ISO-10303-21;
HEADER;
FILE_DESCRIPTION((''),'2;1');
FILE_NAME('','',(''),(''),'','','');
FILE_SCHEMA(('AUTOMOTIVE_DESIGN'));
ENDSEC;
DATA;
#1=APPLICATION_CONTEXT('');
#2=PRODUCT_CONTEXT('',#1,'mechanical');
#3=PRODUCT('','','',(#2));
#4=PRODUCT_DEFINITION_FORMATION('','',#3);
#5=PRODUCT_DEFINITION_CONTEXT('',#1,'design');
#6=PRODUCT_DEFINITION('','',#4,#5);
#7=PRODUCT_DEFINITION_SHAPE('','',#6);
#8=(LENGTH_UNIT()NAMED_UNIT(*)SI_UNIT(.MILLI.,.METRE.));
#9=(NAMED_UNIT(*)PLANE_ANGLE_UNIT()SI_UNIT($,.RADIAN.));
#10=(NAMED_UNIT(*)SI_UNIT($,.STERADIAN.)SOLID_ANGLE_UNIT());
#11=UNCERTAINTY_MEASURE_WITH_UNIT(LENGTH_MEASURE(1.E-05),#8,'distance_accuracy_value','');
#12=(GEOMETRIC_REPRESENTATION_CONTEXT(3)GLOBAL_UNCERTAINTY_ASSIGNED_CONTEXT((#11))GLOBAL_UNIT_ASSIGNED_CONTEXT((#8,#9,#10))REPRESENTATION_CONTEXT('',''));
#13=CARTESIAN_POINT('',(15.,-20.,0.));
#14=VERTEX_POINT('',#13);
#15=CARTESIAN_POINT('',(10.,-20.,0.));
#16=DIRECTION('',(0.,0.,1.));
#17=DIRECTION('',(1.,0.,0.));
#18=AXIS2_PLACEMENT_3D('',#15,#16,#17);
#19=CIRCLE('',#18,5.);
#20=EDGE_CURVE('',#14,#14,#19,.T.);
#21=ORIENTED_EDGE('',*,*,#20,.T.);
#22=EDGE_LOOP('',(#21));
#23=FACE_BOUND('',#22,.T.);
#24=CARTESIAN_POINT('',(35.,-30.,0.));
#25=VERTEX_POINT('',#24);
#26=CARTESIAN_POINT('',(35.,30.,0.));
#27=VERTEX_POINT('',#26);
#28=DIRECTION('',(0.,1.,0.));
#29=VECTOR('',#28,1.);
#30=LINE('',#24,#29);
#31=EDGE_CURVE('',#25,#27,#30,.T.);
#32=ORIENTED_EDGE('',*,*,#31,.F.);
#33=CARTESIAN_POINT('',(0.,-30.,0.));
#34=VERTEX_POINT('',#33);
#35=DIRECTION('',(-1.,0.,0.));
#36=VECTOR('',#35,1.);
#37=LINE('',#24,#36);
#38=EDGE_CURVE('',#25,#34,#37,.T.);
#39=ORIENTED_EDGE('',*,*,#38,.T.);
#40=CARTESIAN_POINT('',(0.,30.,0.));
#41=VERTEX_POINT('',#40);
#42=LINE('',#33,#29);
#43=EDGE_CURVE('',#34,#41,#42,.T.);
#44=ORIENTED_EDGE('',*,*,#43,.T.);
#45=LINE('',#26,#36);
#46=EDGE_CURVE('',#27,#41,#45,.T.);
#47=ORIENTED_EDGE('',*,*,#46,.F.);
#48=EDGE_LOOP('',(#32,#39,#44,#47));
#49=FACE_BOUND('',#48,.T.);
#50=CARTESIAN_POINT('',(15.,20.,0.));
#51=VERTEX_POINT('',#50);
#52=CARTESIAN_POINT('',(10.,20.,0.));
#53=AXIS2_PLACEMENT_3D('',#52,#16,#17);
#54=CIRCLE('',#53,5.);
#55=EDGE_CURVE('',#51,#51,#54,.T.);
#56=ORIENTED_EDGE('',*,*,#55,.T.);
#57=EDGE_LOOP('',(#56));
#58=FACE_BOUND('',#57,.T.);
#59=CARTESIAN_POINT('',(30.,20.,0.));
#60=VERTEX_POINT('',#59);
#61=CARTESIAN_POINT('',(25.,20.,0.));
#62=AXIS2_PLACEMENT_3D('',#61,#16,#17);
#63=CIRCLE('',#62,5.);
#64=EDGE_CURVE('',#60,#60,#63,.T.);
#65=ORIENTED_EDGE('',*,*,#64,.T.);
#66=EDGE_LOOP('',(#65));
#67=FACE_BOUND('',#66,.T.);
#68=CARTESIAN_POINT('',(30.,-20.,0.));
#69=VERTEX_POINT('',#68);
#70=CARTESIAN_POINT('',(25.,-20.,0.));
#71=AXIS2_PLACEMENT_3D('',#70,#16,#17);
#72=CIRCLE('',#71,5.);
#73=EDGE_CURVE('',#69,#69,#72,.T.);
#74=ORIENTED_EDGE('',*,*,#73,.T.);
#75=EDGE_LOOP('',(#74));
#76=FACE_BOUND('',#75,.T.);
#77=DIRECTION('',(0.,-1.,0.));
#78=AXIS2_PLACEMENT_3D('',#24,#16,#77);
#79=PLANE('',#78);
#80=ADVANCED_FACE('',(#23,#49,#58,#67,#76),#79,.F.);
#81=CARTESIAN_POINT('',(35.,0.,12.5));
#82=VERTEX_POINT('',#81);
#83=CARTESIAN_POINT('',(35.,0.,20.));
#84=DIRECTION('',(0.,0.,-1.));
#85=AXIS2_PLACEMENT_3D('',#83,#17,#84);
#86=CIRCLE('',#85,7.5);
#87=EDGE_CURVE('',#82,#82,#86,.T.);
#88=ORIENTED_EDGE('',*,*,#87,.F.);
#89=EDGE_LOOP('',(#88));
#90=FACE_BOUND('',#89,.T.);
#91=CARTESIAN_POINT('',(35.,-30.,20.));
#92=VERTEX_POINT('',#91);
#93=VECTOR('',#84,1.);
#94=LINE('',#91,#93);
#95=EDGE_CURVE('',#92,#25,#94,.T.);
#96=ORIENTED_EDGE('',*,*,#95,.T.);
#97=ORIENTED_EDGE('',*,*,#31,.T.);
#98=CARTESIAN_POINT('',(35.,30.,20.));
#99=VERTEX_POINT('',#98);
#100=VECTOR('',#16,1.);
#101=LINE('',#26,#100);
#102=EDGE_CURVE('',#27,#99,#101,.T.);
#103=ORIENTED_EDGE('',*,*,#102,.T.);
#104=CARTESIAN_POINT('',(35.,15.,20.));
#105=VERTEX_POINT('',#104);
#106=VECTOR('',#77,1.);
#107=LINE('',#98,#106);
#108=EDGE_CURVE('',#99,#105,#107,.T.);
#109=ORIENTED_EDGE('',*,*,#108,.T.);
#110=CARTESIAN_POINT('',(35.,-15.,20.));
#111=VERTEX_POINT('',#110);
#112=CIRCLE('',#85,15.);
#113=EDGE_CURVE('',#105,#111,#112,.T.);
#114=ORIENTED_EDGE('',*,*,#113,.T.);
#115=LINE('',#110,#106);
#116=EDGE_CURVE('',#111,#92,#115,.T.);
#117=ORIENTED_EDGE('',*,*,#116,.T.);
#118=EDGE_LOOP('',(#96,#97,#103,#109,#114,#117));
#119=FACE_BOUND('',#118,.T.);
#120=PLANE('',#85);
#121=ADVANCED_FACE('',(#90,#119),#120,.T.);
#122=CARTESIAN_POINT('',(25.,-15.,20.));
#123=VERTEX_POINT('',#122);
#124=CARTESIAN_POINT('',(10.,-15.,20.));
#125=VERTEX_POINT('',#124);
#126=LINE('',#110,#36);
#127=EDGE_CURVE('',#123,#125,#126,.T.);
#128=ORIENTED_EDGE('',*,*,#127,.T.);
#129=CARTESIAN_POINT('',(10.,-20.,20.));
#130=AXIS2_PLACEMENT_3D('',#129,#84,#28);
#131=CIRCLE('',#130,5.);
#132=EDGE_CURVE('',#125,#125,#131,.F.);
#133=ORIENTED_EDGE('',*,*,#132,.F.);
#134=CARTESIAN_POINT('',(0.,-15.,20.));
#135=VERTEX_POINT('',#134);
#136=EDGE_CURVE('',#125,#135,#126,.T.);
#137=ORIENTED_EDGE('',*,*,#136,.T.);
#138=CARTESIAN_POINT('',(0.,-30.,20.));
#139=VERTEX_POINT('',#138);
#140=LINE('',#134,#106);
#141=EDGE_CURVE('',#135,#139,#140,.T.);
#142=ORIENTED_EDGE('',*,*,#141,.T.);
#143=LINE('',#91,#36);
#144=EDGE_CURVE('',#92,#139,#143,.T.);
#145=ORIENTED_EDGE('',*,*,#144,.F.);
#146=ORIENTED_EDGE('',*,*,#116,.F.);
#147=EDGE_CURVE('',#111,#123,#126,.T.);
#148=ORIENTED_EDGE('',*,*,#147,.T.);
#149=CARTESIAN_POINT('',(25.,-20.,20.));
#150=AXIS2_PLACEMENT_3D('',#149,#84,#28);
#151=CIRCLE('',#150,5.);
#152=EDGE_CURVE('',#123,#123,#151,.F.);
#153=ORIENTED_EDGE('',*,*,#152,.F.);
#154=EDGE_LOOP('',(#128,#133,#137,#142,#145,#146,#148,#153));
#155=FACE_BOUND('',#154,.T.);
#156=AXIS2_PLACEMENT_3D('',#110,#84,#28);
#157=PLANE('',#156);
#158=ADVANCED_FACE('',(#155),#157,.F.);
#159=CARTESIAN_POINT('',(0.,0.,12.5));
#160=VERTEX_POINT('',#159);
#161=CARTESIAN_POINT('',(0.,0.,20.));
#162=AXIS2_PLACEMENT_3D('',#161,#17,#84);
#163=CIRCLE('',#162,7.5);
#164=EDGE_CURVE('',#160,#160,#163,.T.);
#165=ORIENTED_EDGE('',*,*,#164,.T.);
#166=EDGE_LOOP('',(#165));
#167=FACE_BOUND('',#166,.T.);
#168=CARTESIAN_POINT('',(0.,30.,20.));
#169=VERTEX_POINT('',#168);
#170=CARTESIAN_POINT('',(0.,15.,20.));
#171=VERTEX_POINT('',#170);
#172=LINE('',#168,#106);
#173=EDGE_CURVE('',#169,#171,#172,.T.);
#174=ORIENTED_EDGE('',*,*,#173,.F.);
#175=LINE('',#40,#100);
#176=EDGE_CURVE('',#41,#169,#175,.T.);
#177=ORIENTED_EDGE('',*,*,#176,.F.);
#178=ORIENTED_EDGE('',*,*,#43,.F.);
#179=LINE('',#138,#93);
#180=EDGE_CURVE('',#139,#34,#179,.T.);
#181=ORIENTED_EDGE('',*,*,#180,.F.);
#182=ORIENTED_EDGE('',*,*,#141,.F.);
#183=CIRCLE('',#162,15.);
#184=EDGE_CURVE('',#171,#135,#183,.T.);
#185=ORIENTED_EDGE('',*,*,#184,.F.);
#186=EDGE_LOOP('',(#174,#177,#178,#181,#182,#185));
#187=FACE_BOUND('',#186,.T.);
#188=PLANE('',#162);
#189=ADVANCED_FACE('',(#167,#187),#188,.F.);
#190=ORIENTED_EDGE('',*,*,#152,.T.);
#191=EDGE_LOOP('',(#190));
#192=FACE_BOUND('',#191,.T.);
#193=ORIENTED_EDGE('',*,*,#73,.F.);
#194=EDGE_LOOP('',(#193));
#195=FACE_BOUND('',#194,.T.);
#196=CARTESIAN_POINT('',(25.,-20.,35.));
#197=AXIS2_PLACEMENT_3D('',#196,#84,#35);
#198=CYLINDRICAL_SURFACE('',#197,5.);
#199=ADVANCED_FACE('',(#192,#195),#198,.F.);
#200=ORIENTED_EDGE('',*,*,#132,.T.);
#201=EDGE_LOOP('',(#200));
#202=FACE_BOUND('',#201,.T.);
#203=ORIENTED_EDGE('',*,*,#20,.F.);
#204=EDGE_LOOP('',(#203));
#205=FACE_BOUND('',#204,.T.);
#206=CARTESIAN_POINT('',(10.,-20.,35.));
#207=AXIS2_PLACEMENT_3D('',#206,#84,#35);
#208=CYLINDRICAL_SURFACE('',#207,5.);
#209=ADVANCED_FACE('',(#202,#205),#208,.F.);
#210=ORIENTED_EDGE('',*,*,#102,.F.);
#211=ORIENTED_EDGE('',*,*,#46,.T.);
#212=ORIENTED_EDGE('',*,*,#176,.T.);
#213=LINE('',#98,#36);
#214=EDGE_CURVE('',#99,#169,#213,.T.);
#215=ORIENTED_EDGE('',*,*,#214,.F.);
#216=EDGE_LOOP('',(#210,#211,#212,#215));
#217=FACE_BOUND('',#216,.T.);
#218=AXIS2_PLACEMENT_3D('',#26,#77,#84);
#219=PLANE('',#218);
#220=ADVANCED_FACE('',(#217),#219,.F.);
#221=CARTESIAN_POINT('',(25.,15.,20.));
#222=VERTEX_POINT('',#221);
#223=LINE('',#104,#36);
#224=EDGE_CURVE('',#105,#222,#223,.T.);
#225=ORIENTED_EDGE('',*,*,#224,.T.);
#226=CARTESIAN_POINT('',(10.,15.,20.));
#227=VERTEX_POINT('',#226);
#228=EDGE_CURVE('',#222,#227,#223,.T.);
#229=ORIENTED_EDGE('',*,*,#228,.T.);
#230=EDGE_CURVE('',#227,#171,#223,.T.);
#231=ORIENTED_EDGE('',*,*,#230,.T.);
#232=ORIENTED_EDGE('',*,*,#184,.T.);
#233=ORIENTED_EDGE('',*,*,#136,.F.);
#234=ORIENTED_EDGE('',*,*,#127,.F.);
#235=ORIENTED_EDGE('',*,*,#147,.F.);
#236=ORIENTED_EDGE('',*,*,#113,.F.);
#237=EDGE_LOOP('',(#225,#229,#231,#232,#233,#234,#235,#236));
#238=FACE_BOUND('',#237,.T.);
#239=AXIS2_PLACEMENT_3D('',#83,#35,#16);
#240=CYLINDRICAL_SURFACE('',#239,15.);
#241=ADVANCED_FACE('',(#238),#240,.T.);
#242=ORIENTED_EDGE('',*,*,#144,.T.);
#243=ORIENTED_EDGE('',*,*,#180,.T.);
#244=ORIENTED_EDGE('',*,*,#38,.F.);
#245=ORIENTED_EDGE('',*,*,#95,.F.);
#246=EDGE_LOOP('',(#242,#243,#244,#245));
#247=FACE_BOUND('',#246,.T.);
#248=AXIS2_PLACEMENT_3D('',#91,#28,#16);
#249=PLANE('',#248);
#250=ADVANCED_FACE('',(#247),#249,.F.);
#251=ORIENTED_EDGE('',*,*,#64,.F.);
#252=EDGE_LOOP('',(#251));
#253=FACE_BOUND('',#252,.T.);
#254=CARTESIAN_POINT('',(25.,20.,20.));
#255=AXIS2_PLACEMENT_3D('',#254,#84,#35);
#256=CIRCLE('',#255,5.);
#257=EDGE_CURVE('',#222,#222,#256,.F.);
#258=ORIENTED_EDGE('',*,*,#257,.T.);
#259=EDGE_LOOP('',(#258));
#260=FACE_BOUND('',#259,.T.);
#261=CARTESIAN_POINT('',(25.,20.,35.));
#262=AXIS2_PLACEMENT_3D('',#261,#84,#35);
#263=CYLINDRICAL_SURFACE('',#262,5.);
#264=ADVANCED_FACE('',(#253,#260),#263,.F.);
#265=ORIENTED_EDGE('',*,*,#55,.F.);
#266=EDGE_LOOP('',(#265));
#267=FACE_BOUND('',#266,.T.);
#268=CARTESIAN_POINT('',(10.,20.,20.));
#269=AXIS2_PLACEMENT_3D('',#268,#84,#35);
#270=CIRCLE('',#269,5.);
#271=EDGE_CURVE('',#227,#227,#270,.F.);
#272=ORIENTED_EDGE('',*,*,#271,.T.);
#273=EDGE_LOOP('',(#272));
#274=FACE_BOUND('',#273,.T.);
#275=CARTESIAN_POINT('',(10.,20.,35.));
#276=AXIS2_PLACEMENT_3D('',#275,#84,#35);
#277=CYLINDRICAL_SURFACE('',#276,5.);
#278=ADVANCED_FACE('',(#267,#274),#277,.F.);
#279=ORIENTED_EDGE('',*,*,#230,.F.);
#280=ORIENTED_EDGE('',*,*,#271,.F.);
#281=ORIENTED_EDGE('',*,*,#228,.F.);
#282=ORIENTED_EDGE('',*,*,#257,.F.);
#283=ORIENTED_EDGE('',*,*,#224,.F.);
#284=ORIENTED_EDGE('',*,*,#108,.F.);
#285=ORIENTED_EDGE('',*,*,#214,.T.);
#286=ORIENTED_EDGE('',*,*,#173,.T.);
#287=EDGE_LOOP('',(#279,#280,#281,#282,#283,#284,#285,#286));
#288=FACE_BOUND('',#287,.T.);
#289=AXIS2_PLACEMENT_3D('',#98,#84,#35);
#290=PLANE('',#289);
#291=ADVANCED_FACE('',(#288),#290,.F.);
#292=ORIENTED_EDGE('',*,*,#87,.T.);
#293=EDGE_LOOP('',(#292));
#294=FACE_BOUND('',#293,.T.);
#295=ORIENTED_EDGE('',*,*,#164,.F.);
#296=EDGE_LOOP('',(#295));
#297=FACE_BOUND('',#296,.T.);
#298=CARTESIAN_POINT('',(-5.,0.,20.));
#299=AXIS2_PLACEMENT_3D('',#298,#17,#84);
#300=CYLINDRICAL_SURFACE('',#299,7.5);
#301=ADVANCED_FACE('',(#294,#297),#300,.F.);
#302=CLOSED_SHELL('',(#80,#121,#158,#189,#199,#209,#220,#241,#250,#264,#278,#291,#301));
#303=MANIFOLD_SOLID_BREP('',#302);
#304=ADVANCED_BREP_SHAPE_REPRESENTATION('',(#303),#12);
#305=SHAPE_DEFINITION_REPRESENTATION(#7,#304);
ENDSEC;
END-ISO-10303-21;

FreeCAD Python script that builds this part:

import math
import FreeCAD as App
import Part
import Sketcher
from FreeCAD import Vector

doc = App.newDocument("Part")
body = doc.addObject("PartDesign::Body", "Body")

# Sketch on YZ plane
sketch1 = doc.addObject("Sketcher::SketchObject", "Sketch")
body.addObject(sketch1)
sketch1.AttachmentSupport = (doc.YZ_Plane, [""])
sketch1.MapMode = "FlatFace"
sketch1.addGeometry([
    Part.LineSegment(Vector(-30, 0, 0), Vector(30, 0, 0)),  # 0
    Part.LineSegment(Vector(30, 0, 0), Vector(30, 20, 0)),  # 1
    Part.LineSegment(Vector(30, 20, 0), Vector(15, 20, 0)),  # 2
    Part.ArcOfCircle(Part.Circle(Vector(0, 20, 0), Vector(0, 0, 1), 15), math.radians(0), math.radians(180)),  # 3
    Part.LineSegment(Vector(-15, 20, 0), Vector(-30, 20, 0)),  # 4
    Part.LineSegment(Vector(-30, 20, 0), Vector(-30, 0, 0)),  # 5
], False)
sketch1.addConstraint([
    Sketcher.Constraint("Coincident", 0, 2, 1, 1),
    Sketcher.Constraint("Coincident", 1, 2, 2, 1),
    Sketcher.Constraint("Coincident", 2, 2, 3, 1),
    Sketcher.Constraint("Coincident", 3, 2, 4, 1),
    Sketcher.Constraint("Coincident", 4, 2, 5, 1),
    Sketcher.Constraint("Coincident", 5, 2, 0, 1),
    Sketcher.Constraint("Horizontal", 0),
    Sketcher.Constraint("Vertical", 1),
    Sketcher.Constraint("Horizontal", 2),
    Sketcher.Constraint("Horizontal", 4),
    Sketcher.Constraint("Vertical", 5),
    Sketcher.Constraint("Symmetric", 0, 2, 5, 2, -1, 1),
    Sketcher.Constraint("Symmetric", 2, 2, 3, 2, -2),
    Sketcher.Constraint("Horizontal", 3, 3, 1, 2),
    Sketcher.Constraint("Radius", 3, 15.0),
    Sketcher.Constraint("DistanceX", 0, 1, 0, 2, 60.0),
    Sketcher.Constraint("DistanceY", 1, 1, 1, 2, 20.0),
])
pad1 = doc.addObject("PartDesign::Pad", "Pad")
body.addObject(pad1)
pad1.Profile = sketch1
pad1.Length = 35

# Sketch on XY plane
sketch2 = doc.addObject("Sketcher::SketchObject", "Sketch001")
body.addObject(sketch2)
sketch2.AttachmentSupport = (doc.XY_Plane, [""])
sketch2.MapMode = "FlatFace"
sketch2.addGeometry([
    Part.Circle(Vector(10, 20, 0), Vector(0, 0, 1), 5),
    Part.Circle(Vector(25, 20, 0), Vector(0, 0, 1), 5),
    Part.Circle(Vector(10, -20, 0), Vector(0, 0, 1), 5),
    Part.Circle(Vector(25, -20, 0), Vector(0, 0, 1), 5),
], False)
sketch2.addConstraint([
    Sketcher.Constraint("Equal", 0, 1),
    Sketcher.Constraint("Equal", 1, 2),
    Sketcher.Constraint("Equal", 2, 3),
    Sketcher.Constraint("Symmetric", 0, 3, 2, 3, -1),
    Sketcher.Constraint("Symmetric", 1, 3, 3, 3, -1),
    Sketcher.Constraint("Horizontal", 0, 3, 1, 3),
    Sketcher.Constraint("Diameter", 0, 10.0),
    Sketcher.Constraint("DistanceX", -1, 1, 0, 3, 10.0),
    Sketcher.Constraint("DistanceY", -1, 1, 0, 3, 20.0),
    Sketcher.Constraint("DistanceX", -1, 1, 1, 3, 25.0),
])
pocket1 = doc.addObject("PartDesign::Pocket", "Pocket")
body.addObject(pocket1)
pocket1.Profile = sketch2
pocket1.Type = "ThroughAll"
pocket1.Reversed = True

# Sketch on YZ plane
sketch3 = doc.addObject("Sketcher::SketchObject", "Sketch002")
body.addObject(sketch3)
sketch3.AttachmentSupport = (doc.YZ_Plane, [""])
sketch3.MapMode = "FlatFace"
sketch3.AttachmentOffset = App.Placement(Vector(0, 0, 35), App.Rotation())
sketch3.addGeometry(Part.Circle(Vector(0, 20, 0), Vector(0, 0, 1), 8), False)
sketch3.addConstraint([
    Sketcher.Constraint("PointOnObject", 0, 3, -2),
    Sketcher.Constraint("Diameter", 0, 15.0),
    Sketcher.Constraint("DistanceY", -1, 1, 0, 3, 20.0),
])
pocket2 = doc.addObject("PartDesign::Pocket", "Pocket001")
body.addObject(pocket2)
pocket2.Profile = sketch3
pocket2.Length = 40

doc.recompute()
